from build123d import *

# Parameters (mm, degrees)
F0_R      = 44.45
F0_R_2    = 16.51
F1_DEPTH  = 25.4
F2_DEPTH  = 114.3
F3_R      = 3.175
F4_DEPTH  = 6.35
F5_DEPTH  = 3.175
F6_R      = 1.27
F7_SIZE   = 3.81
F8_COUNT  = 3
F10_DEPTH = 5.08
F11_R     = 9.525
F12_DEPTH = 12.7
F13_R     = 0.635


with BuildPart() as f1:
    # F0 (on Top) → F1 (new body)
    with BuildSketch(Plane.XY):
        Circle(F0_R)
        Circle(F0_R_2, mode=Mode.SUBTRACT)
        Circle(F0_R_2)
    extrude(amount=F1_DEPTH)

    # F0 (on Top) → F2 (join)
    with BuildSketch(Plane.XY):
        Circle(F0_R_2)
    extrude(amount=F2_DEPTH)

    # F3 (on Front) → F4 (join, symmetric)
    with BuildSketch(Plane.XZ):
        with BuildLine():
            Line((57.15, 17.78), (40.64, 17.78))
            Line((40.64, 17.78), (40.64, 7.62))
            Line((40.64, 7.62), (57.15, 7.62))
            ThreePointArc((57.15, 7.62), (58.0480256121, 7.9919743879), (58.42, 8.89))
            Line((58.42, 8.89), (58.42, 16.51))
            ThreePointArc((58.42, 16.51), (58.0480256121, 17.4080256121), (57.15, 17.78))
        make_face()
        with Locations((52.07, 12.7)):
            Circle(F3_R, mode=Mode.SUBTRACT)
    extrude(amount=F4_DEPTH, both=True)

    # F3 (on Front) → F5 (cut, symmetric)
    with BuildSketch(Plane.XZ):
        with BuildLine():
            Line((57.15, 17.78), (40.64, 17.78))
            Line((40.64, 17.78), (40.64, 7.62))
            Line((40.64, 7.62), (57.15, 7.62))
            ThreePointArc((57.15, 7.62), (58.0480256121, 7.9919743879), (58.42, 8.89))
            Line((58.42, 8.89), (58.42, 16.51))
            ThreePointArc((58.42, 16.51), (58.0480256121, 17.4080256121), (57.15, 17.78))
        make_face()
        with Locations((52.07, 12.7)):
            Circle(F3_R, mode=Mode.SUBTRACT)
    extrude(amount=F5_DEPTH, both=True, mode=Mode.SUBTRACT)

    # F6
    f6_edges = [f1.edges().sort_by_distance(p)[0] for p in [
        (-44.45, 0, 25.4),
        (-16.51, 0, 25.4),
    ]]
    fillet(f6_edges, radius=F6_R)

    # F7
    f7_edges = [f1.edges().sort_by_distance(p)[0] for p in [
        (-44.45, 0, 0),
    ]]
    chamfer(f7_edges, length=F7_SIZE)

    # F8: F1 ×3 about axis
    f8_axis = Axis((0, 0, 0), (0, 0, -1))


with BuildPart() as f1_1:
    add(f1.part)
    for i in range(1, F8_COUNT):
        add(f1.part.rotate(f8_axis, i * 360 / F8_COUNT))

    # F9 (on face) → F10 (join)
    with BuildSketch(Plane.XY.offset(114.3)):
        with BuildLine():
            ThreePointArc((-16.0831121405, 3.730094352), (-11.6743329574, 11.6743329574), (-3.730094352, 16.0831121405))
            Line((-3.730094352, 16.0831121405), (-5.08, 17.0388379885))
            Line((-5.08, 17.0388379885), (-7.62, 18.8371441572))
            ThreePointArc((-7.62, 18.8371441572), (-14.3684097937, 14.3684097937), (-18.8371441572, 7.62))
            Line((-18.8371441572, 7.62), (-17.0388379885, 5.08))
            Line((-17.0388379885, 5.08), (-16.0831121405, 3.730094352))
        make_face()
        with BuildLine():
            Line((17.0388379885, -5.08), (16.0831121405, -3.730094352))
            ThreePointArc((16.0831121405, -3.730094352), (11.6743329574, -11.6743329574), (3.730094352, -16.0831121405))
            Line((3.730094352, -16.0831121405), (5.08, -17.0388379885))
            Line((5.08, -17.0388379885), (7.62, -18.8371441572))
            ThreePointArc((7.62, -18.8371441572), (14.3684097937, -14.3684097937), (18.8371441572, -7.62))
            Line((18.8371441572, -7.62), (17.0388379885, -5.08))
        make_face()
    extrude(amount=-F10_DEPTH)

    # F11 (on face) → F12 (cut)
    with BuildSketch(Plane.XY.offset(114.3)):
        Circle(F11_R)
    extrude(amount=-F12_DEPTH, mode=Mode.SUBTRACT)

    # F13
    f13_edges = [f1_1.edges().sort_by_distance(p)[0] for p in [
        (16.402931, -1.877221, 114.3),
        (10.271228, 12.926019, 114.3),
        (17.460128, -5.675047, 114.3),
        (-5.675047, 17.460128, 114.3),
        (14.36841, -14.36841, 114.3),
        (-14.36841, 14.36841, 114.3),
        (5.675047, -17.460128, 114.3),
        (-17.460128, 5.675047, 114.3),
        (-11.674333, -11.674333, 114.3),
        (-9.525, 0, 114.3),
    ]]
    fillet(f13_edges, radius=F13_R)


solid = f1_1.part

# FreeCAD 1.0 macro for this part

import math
import FreeCAD as App
import Part
import Sketcher

V = App.Vector
Q = App.Units.Quantity


def edges_at(feature, points):
    """Names of the edges that pass closest to the given points."""
    edges = feature.Shape.Edges
    near = lambda p: min(range(len(edges)), key=lambda i: edges[i].distToShape(Part.Vertex(*p))[0])
    return sorted({f"Edge{near(p) + 1}" for p in points})

doc = App.newDocument("Part")
params = doc.addObject("Spreadsheet::Sheet", "Params")
for row, (alias, value) in enumerate([
    ("sketch1_diameter", "3.5 in"),
    ("pad1_length", "1 in"),
    ("sketch2_diameter", "1.3 in"),
    ("pad2_length", "4.5 in"),
    ("sketch3_diameter", "0.25 in"),
    ("sketch3_radius", "0.05 in"),
    ("sketch3_height", "0.4 in"),
    ("sketch3_width", "0.65 in"),
    ("pad3_length", "0.5 in"),
    ("sketch4_diameter", "0.25 in"),
    ("sketch4_radius", "0.05 in"),
    ("sketch4_height", "0.4 in"),
    ("sketch4_width", "0.65 in"),
    ("pocket1_length", "0.25 in"),
    ("fillet_radius", "0.05 in"),
    ("chamfer_size", "0.15 in"),
    ("sketch5_radius", "0.8 in"),
    ("sketch5_radius2", "0.65 in"),
    ("pad4_length", "0.2 in"),
    ("sketch6_diameter", "0.75 in"),
    ("pocket2_length", "0.5 in"),
    ("fillet2_radius", "0.025 in"),
], start=1):
    params.set(f"A{row}", alias)
    params.set(f"B{row}", "=" + value)
    params.setAlias(f"B{row}", alias)

body = doc.addObject("PartDesign::Body", "Body")

sketch1 = body.newObject("Sketcher::SketchObject", "Sketch")
sketch1.AttachmentSupport = (doc.getObject("XY_Plane"), [""])
sketch1.MapMode = "FlatFace"
sketch1.addGeometry(Part.Circle(V(0, 0, 0), V(0, 0, 1), 44.45), False)
sketch1.addConstraint([
    Sketcher.Constraint("Coincident", 0, 3, -1, 1),
    Sketcher.Constraint("Diameter", 0, Q("3.5 in")),
])
sketch1.setExpression("Constraints[1]", "Params.sketch1_diameter")
pad1 = body.newObject("PartDesign::Pad", "Pad")
pad1.Profile = sketch1
pad1.setExpression("Length", "Params.pad1_length")

sketch2 = body.newObject("Sketcher::SketchObject", "Sketch001")
sketch2.AttachmentSupport = (doc.getObject("XY_Plane"), [""])
sketch2.MapMode = "FlatFace"
sketch2.addGeometry(Part.Circle(V(0, 0, 0), V(0, 0, 1), 16.51), False)
sketch2.addConstraint([
    Sketcher.Constraint("Coincident", 0, 3, -1, 1),
    Sketcher.Constraint("Diameter", 0, Q("1.3 in")),
])
sketch2.setExpression("Constraints[1]", "Params.sketch2_diameter")
pad2 = body.newObject("PartDesign::Pad", "Pad001")
pad2.Profile = sketch2
pad2.setExpression("Length", "Params.pad2_length")

sketch3 = body.newObject("Sketcher::SketchObject", "Sketch002")
sketch3.AttachmentSupport = (doc.getObject("XZ_Plane"), [""])
sketch3.MapMode = "FlatFace"
sketch3.addGeometry([
    Part.LineSegment(V(57.15, 17.78, 0), V(40.64, 17.78, 0)),
    Part.LineSegment(V(40.64, 17.78, 0), V(40.64, 7.62, 0)),
    Part.LineSegment(V(40.64, 7.62, 0), V(57.15, 7.62, 0)),
    Part.ArcOfCircle(Part.Circle(V(57.15, 8.89, 0), V(0, 0, 1), 1.27), math.radians(-90), math.radians(0)),
    Part.LineSegment(V(58.42, 8.89, 0), V(58.42, 16.51, 0)),
    Part.ArcOfCircle(Part.Circle(V(57.15, 16.51, 0), V(0, 0, 1), 1.27), math.radians(0), math.radians(90)),
    Part.Circle(V(52.07, 12.7, 0), V(0, 0, 1), 3.175),
], False)
sketch3.addConstraint([
    Sketcher.Constraint("Coincident", 0, 2, 1, 1),
    Sketcher.Constraint("Coincident", 1, 2, 2, 1),
    Sketcher.Constraint("Tangent", 2, 2, 3, 1),
    Sketcher.Constraint("Tangent", 3, 2, 4, 1),
    Sketcher.Constraint("Tangent", 4, 2, 5, 1),
    Sketcher.Constraint("Tangent", 5, 2, 0, 1),
    Sketcher.Constraint("Horizontal", 0),
    Sketcher.Constraint("Vertical", 1),
    Sketcher.Constraint("Horizontal", 2),
    Sketcher.Constraint("Vertical", 4),
    Sketcher.Constraint("Equal", 3, 5),
    Sketcher.Constraint("Diameter", 6, Q("0.25 in")),
    Sketcher.Constraint("Radius", 3, Q("0.05 in")),
    Sketcher.Constraint("DistanceY", 1, 2, 1, 1, Q("0.4 in")),
    Sketcher.Constraint("DistanceX", 0, 2, 0, 1, Q("0.65 in")),
    Sketcher.Constraint("DistanceY", -1, 1, 6, 3, Q("0.5 in")),
    Sketcher.Constraint("DistanceX", -1, 1, 0, 2, Q("1.6 in")),
    Sketcher.Constraint("DistanceY", -1, 1, 0, 2, Q("0.7 in")),
    Sketcher.Constraint("DistanceX", 6, 3, 3, 3, Q("0.2 in")),
])
sketch3.setExpression("Constraints[11]", "Params.sketch3_diameter")
sketch3.setExpression("Constraints[12]", "Params.sketch3_radius")
sketch3.setExpression("Constraints[13]", "Params.sketch3_height")
sketch3.setExpression("Constraints[14]", "Params.sketch3_width")
pad3 = body.newObject("PartDesign::Pad", "Pad002")
pad3.Profile = sketch3
pad3.setExpression("Length", "Params.pad3_length")
pad3.Midplane = True

sketch4 = body.newObject("Sketcher::SketchObject", "Sketch003")
sketch4.AttachmentSupport = (doc.getObject("XZ_Plane"), [""])
sketch4.MapMode = "FlatFace"
sketch4.addGeometry([
    Part.LineSegment(V(57.15, 17.78, 0), V(40.64, 17.78, 0)),
    Part.LineSegment(V(40.64, 17.78, 0), V(40.64, 7.62, 0)),
    Part.LineSegment(V(40.64, 7.62, 0), V(57.15, 7.62, 0)),
    Part.ArcOfCircle(Part.Circle(V(57.15, 8.89, 0), V(0, 0, 1), 1.27), math.radians(-90), math.radians(0)),
    Part.LineSegment(V(58.42, 8.89, 0), V(58.42, 16.51, 0)),
    Part.ArcOfCircle(Part.Circle(V(57.15, 16.51, 0), V(0, 0, 1), 1.27), math.radians(0), math.radians(90)),
    Part.Circle(V(52.07, 12.7, 0), V(0, 0, 1), 3.175),
], False)
sketch4.addConstraint([
    Sketcher.Constraint("Coincident", 0, 2, 1, 1),
    Sketcher.Constraint("Coincident", 1, 2, 2, 1),
    Sketcher.Constraint("Tangent", 2, 2, 3, 1),
    Sketcher.Constraint("Tangent", 3, 2, 4, 1),
    Sketcher.Constraint("Tangent", 4, 2, 5, 1),
    Sketcher.Constraint("Tangent", 5, 2, 0, 1),
    Sketcher.Constraint("Horizontal", 0),
    Sketcher.Constraint("Vertical", 1),
    Sketcher.Constraint("Horizontal", 2),
    Sketcher.Constraint("Vertical", 4),
    Sketcher.Constraint("Equal", 3, 5),
    Sketcher.Constraint("Diameter", 6, Q("0.25 in")),
    Sketcher.Constraint("Radius", 3, Q("0.05 in")),
    Sketcher.Constraint("DistanceY", 1, 2, 1, 1, Q("0.4 in")),
    Sketcher.Constraint("DistanceX", 0, 2, 0, 1, Q("0.65 in")),
    Sketcher.Constraint("DistanceY", -1, 1, 6, 3, Q("0.5 in")),
    Sketcher.Constraint("DistanceX", -1, 1, 0, 2, Q("1.6 in")),
    Sketcher.Constraint("DistanceY", -1, 1, 0, 2, Q("0.7 in")),
    Sketcher.Constraint("DistanceX", 6, 3, 3, 3, Q("0.2 in")),
])
sketch4.setExpression("Constraints[11]", "Params.sketch4_diameter")
sketch4.setExpression("Constraints[12]", "Params.sketch4_radius")
sketch4.setExpression("Constraints[13]", "Params.sketch4_height")
sketch4.setExpression("Constraints[14]", "Params.sketch4_width")
pocket1 = body.newObject("PartDesign::Pocket", "Pocket")
pocket1.Profile = sketch4
pocket1.setExpression("Length", "Params.pocket1_length")
pocket1.Midplane = True
doc.recompute()

fillet = body.newObject("PartDesign::Fillet", "Fillet")
fillet.Base = (pocket1, edges_at(pocket1, [(-44.45, 0, 25.4), (-16.51, 0, 25.4)]))
fillet.setExpression("Radius", "Params.fillet_radius")
doc.recompute()

chamfer = body.newObject("PartDesign::Chamfer", "Chamfer")
chamfer.Base = (fillet, edges_at(fillet, [(-44.45, 0, 0)]))
chamfer.setExpression("Size", "Params.chamfer_size")
body2 = doc.addObject("PartDesign::Body", "Body001")
doc.recompute()

body2.BaseFeature = body
doc.recompute()

body3 = doc.addObject("PartDesign::Body", "Body002")
body3.BaseFeature = body
body3.Placement = App.Placement(V(0, 0, 0), App.Rotation(V(0, 0, -1), 120))
boolean = body2.newObject("PartDesign::Boolean", "Boolean")
boolean.Type = "Fuse"
boolean.addObjects([body3])
doc.recompute()

body.Placement = App.Placement(V(0, 0, 0), App.Rotation(V(0, 0, -1), 240))
boolean2 = body2.newObject("PartDesign::Boolean", "Boolean001")
boolean2.Type = "Fuse"
boolean2.addObjects([body])

sketch5 = body2.newObject("Sketcher::SketchObject", "Sketch004")
sketch5.AttachmentSupport = (doc.getObject("XY_Plane001"), [""])
sketch5.MapMode = "FlatFace"
sketch5.AttachmentOffset = App.Placement(V(0, 0, 4.5 * 25.4), App.Rotation())
sketch5.addGeometry([
    Part.ArcOfCircle(Part.Circle(V(0, 0, 0), V(0, 0, 1), 16.51), math.radians(103.057536), math.radians(166.942464)),
    Part.LineSegment(V(-3.730094, 16.083112, 0), V(-5.08, 17.038838, 0)),
    Part.LineSegment(V(-5.08, 17.038838, 0), V(-7.62, 18.837144, 0)),
    Part.ArcOfCircle(Part.Circle(V(0, 0, 0), V(0, 0, 1), 20.32), math.radians(112.024313), math.radians(157.975687)),
    Part.LineSegment(V(-18.837144, 7.62, 0), V(-17.038838, 5.08, 0)),
    Part.LineSegment(V(-17.038838, 5.08, 0), V(-16.083112, 3.730094, 0)),
    Part.LineSegment(V(17.038838, -5.08, 0), V(16.083112, -3.730094, 0)),
    Part.ArcOfCircle(Part.Circle(V(0, 0, 0), V(0, 0, 1), 16.51), math.radians(-76.942464), math.radians(-13.057536)),
    Part.LineSegment(V(3.730094, -16.083112, 0), V(5.08, -17.038838, 0)),
    Part.LineSegment(V(5.08, -17.038838, 0), V(7.62, -18.837144, 0)),
    Part.ArcOfCircle(Part.Circle(V(0, 0, 0), V(0, 0, 1), 20.32), math.radians(-67.975687), math.radians(-22.024313)),
    Part.LineSegment(V(18.837144, -7.62, 0), V(17.038838, -5.08, 0)),
], False)
sketch5.addConstraint([
    Sketcher.Constraint("Coincident", 0, 1, 1, 1),
    Sketcher.Constraint("Coincident", 1, 2, 2, 1),
    Sketcher.Constraint("Coincident", 2, 2, 3, 1),
    Sketcher.Constraint("Coincident", 3, 2, 4, 1),
    Sketcher.Constraint("Coincident", 4, 2, 5, 1),
    Sketcher.Constraint("Coincident", 5, 2, 0, 2),
    Sketcher.Constraint("Coincident", 6, 2, 7, 2),
    Sketcher.Constraint("Coincident", 7, 1, 8, 1),
    Sketcher.Constraint("Coincident", 8, 2, 9, 1),
    Sketcher.Constraint("Coincident", 9, 2, 10, 1),
    Sketcher.Constraint("Coincident", 10, 2, 11, 1),
    Sketcher.Constraint("Coincident", 11, 2, 6, 1),
    Sketcher.Constraint("Coincident", 0, 3, -1, 1),
    Sketcher.Constraint("Coincident", 3, 3, -1, 1),
    Sketcher.Constraint("Coincident", 7, 3, -1, 1),
    Sketcher.Constraint("Coincident", 10, 3, -1, 1),
    Sketcher.Constraint("Equal", 0, 7),
    Sketcher.Constraint("Equal", 3, 10),
    Sketcher.Constraint("Symmetric", 1, 2, 8, 2, -1, 1),
    Sketcher.Constraint("Symmetric", 4, 2, 11, 2, -1, 1),
    Sketcher.Constraint("Parallel", 1, 2),
    Sketcher.Constraint("Parallel", 4, 5),
    Sketcher.Constraint("Parallel", 5, 6),
    Sketcher.Constraint("Parallel", 2, 8),
    Sketcher.Constraint("Parallel", 8, 9),
    Sketcher.Constraint("Parallel", 6, 11),
    Sketcher.Constraint("Equal", 2, 4),
    Sketcher.Constraint("Equal", 1, 5),
    Sketcher.Constraint("Radius", 3, Q("0.8 in")),
    Sketcher.Constraint("Radius", 0, Q("0.65 in")),
    Sketcher.Constraint("DistanceX", 1, 2, -1, 1, Q("0.2 in")),
    Sketcher.Constraint("DistanceX", 2, 2, -1, 1, Q("0.3 in")),
    Sketcher.Constraint("DistanceY", -1, 1, 3, 2, Q("0.3 in")),
    Sketcher.Constraint("DistanceX", 3, 2, 0, 1, Q("15.10705 mm")),
])
sketch5.setExpression("Constraints[28]", "Params.sketch5_radius")
sketch5.setExpression("Constraints[29]", "Params.sketch5_radius2")
pad4 = body2.newObject("PartDesign::Pad", "Pad003")
pad4.Profile = sketch5
pad4.setExpression("Length", "Params.pad4_length")
pad4.Reversed = True

sketch6 = body2.newObject("Sketcher::SketchObject", "Sketch005")
sketch6.AttachmentSupport = (doc.getObject("XY_Plane001"), [""])
sketch6.MapMode = "FlatFace"
sketch6.AttachmentOffset = App.Placement(V(0, 0, 4.5 * 25.4), App.Rotation())
sketch6.addGeometry(Part.Circle(V(0, 0, 0), V(0, 0, 1), 9.525), False)
sketch6.addConstraint([
    Sketcher.Constraint("Coincident", 0, 3, -1, 1),
    Sketcher.Constraint("Diameter", 0, Q("0.75 in")),
])
sketch6.setExpression("Constraints[1]", "Params.sketch6_diameter")
pocket2 = body2.newObject("PartDesign::Pocket", "Pocket001")
pocket2.Profile = sketch6
pocket2.setExpression("Length", "Params.pocket2_length")
doc.recompute()

fillet2 = body2.newObject("PartDesign::Fillet", "Fillet001")
fillet2.Base = (pocket2, edges_at(pocket2, [
    (16.403, -1.877, 114.3),
    (10.271, 12.926, 114.3),
    (17.938, -6.35, 114.3),
    (-6.35, 17.938, 114.3),
    (14.368, -14.368, 114.3),
    (-14.368, 14.368, 114.3),
    (6.35, -17.938, 114.3),
    (-17.938, 6.35, 114.3),
    (-11.674, -11.674, 114.3),
    (-9.525, 0, 114.3),
]))
fillet2.setExpression("Radius", "Params.fillet2_radius")

doc.recompute()
